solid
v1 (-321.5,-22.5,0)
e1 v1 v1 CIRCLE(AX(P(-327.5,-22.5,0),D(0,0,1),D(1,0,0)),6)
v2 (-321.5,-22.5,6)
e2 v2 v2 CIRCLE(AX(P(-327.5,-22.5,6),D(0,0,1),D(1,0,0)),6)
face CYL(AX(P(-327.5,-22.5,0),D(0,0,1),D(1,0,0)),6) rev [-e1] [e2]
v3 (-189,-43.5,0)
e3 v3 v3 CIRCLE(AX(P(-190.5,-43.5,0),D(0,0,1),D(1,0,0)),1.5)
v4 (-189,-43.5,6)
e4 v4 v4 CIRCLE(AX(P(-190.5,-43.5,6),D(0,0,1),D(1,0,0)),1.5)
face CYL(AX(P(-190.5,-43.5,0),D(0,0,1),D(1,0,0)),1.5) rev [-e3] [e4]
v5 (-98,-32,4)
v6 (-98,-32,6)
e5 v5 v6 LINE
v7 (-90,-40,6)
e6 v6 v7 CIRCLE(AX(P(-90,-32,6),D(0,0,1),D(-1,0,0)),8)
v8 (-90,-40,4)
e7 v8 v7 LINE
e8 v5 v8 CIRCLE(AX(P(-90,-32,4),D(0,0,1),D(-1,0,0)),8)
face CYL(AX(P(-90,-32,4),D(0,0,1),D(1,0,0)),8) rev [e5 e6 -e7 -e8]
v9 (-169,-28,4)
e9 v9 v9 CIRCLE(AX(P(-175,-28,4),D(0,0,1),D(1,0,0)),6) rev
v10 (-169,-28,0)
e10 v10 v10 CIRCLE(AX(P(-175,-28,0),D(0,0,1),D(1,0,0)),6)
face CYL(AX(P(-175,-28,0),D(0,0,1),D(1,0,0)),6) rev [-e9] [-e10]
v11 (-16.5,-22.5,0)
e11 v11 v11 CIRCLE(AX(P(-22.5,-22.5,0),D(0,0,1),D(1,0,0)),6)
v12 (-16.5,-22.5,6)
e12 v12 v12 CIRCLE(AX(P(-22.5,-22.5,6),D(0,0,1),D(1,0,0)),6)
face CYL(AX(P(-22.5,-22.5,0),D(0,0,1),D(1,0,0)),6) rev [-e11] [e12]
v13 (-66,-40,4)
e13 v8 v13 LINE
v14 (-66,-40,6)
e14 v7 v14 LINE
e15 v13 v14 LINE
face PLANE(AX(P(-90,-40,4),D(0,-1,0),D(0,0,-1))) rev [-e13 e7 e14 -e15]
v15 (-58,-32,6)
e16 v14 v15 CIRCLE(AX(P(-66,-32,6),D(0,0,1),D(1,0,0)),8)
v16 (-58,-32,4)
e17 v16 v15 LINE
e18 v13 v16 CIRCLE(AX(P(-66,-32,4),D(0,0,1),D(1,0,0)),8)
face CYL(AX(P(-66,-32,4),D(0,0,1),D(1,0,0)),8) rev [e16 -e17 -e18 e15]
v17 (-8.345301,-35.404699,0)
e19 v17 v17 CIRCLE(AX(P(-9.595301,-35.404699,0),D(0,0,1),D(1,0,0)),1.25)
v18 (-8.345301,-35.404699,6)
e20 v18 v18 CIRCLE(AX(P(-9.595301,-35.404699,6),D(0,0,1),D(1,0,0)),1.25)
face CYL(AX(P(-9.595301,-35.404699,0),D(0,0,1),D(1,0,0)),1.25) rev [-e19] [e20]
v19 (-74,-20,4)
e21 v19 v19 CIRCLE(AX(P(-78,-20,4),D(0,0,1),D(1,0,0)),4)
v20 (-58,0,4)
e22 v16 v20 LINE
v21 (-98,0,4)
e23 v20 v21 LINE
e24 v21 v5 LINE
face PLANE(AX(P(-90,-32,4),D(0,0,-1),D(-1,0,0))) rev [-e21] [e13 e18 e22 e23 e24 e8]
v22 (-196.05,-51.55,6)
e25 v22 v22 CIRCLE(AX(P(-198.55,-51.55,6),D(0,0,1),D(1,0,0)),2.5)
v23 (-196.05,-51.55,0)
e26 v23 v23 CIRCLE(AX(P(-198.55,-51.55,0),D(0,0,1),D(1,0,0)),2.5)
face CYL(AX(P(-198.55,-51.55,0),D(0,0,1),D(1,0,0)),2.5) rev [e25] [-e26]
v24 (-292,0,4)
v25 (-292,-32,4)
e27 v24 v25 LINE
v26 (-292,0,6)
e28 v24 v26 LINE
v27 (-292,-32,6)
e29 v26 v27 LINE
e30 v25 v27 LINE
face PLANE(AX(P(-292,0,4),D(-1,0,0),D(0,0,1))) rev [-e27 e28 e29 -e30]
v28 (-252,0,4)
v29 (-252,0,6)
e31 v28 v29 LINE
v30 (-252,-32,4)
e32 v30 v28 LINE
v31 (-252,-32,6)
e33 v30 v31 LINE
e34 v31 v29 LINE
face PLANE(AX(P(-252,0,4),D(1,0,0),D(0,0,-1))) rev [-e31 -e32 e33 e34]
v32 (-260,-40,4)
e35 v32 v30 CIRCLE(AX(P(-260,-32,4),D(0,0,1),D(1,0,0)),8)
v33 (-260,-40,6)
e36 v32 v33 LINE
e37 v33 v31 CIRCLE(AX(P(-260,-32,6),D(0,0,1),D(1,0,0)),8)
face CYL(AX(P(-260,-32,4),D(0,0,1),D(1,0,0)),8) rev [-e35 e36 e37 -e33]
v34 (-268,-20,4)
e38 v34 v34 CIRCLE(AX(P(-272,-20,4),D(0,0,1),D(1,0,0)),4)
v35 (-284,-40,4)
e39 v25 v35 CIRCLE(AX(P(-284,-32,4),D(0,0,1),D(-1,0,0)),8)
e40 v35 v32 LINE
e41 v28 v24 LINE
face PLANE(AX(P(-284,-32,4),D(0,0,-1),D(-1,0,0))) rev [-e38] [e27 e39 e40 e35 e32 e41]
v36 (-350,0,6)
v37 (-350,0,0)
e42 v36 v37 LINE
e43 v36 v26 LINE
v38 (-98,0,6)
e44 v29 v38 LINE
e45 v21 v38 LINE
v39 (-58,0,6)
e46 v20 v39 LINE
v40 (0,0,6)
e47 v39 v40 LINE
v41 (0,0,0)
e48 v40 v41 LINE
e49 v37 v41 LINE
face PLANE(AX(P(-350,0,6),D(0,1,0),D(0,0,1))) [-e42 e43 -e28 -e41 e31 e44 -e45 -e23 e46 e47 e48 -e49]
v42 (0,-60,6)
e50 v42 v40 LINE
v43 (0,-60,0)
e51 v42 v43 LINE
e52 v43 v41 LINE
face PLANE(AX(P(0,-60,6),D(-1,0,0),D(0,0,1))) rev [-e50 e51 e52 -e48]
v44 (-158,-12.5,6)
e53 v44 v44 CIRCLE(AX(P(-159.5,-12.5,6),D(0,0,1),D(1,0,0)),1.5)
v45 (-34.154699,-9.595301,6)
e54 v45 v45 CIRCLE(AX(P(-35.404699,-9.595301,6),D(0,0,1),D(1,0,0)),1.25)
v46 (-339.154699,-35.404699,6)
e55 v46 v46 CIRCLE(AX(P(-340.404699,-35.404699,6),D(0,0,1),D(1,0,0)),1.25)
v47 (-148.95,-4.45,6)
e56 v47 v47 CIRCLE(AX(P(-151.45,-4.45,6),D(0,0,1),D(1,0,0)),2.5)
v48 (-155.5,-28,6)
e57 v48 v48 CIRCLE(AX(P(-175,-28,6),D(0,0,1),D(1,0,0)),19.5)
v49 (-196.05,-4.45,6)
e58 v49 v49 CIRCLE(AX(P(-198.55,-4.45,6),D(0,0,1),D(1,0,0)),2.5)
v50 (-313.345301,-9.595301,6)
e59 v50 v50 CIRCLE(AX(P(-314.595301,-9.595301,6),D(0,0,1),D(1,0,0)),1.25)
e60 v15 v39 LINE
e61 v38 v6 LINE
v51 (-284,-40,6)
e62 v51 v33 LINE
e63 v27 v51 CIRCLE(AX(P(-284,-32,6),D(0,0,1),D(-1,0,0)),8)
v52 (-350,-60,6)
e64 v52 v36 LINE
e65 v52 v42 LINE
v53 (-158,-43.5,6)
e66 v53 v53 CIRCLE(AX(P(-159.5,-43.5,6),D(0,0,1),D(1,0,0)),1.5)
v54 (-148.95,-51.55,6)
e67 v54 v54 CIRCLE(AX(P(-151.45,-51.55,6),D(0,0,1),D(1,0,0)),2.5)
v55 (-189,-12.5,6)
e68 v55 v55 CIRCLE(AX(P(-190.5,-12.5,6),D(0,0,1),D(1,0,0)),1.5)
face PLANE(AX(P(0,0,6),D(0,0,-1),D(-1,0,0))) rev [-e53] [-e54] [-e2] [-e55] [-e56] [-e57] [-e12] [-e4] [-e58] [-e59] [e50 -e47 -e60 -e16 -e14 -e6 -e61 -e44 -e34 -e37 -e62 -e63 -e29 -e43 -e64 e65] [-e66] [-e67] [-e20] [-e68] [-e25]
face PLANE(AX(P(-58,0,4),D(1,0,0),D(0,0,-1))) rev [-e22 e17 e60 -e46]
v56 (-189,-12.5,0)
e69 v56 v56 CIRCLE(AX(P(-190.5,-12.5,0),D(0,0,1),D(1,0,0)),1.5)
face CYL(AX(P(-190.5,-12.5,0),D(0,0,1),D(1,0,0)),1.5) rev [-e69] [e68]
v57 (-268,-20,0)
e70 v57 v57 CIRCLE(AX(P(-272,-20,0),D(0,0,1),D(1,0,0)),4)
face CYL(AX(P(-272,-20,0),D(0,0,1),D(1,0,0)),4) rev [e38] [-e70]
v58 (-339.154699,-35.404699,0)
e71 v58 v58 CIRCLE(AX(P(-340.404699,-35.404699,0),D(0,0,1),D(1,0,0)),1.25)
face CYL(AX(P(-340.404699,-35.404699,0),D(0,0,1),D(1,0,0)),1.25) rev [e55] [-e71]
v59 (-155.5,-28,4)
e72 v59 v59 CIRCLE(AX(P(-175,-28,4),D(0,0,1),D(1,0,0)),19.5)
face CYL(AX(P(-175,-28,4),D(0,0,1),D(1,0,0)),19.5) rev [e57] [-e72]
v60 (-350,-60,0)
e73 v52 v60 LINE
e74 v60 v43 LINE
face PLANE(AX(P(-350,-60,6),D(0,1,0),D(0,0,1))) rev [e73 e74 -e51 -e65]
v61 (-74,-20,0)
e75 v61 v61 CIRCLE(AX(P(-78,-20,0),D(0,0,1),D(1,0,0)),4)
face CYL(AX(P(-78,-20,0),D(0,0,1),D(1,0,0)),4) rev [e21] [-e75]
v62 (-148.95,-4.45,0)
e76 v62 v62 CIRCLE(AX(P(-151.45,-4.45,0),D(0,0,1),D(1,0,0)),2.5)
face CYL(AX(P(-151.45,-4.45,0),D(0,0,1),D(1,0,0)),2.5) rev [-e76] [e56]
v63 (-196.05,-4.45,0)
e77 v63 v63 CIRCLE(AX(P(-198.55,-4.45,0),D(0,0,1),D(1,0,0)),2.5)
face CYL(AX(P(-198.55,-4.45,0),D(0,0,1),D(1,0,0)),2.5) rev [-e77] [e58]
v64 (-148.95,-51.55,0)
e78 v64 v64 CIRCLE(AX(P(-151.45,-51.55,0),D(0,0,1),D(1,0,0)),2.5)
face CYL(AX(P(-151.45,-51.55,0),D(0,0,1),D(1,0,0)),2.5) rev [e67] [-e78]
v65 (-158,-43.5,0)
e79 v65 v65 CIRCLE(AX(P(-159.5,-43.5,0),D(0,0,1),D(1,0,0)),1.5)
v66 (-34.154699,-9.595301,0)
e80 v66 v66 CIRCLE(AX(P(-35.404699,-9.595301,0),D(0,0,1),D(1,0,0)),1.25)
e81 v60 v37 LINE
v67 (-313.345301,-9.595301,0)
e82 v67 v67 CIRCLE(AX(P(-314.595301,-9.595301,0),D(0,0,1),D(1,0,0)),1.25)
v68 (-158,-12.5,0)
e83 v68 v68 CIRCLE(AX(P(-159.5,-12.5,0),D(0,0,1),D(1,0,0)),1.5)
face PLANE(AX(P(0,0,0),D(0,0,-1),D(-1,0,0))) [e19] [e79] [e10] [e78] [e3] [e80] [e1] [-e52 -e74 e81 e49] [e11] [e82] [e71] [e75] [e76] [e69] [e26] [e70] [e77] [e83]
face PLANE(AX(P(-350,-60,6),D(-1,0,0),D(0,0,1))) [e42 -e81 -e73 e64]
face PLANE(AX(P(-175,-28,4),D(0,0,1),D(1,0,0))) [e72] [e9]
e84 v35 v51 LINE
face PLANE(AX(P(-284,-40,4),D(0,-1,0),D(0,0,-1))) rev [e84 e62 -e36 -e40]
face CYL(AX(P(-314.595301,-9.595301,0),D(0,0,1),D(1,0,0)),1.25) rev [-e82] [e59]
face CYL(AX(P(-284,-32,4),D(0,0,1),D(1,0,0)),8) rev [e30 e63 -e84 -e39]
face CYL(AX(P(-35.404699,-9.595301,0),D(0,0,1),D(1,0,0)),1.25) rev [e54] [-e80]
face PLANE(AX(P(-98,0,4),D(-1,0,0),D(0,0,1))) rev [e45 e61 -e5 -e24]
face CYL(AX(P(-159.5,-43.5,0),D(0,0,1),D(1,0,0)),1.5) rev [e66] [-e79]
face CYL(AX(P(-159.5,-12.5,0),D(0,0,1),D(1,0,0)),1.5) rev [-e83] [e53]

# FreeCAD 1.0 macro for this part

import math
import FreeCAD as App
import Part
import Sketcher

V = App.Vector


def add_polygon(sketch, points):
    """Adds a closed chain of lines whose ends are joined by coincident constraints."""
    first, n = sketch.GeometryCount, len(points)
    for a, b in zip(points, points[1:] + points[:1]):
        sketch.addGeometry(Part.LineSegment(App.Vector(*a, 0), App.Vector(*b, 0)), False)
    for i in range(n):
        sketch.addConstraint(Sketcher.Constraint("Coincident", first + i, 2, first + (i + 1) % n, 1))

doc = App.newDocument("Part")
body = doc.addObject("PartDesign::Body", "Body")

sketch1 = doc.addObject("Sketcher::SketchObject", "Sketch")
body.addObject(sketch1)
sketch1.AttachmentSupport = (doc.XY_Plane, [""])
sketch1.MapMode = "FlatFace"
add_polygon(sketch1, [(-350, 0), (-350, -60), (0, -60), (0, 0)])
sketch1.addConstraint(Sketcher.Constraint("Vertical", 0))
sketch1.addConstraint(Sketcher.Constraint("Horizontal", 1))
sketch1.addConstraint(Sketcher.Constraint("Vertical", 2))
sketch1.addConstraint(Sketcher.Constraint("Horizontal", 3))
sketch1.addConstraint(Sketcher.Constraint("Coincident", 2, 2, -1, 1))
sketch1.addConstraint(Sketcher.Constraint("DistanceX", 1, 1, 1, 2, 350.0))
sketch1.addConstraint(Sketcher.Constraint("DistanceY", 0, 2, 0, 1, 60.0))
pad1 = doc.addObject("PartDesign::Pad", "Pad")
body.addObject(pad1)
pad1.Profile = sketch1
pad1.Length = 6

sketch2 = doc.addObject("Sketcher::SketchObject", "Sketch001")
body.addObject(sketch2)
sketch2.AttachmentSupport = (doc.XY_Plane, [""])
sketch2.MapMode = "FlatFace"
sketch2.AttachmentOffset = App.Placement(V(0, 0, 6), App.Rotation())
sketch2.addGeometry(Part.Circle(V(-327.5, -22.5, 0), V(0, 0, 1), 6), False)
sketch2.addGeometry(Part.Circle(V(-22.5, -22.5, 0), V(0, 0, 1), 6), False)
sketch2.addGeometry(Part.Circle(V(-314.6, -9.6, 0), V(0, 0, 1), 1.2), False)
sketch2.addGeometry(Part.Circle(V(-340.4, -35.4, 0), V(0, 0, 1), 1.2), False)
sketch2.addGeometry(Part.Circle(V(-35.4, -9.6, 0), V(0, 0, 1), 1.2), False)
sketch2.addGeometry(Part.Circle(V(-9.6, -35.4, 0), V(0, 0, 1), 1.2), False)
sketch2.addConstraint(Sketcher.Constraint("Equal", 0, 1))
sketch2.addConstraint(Sketcher.Constraint("Equal", 2, 3))
sketch2.addConstraint(Sketcher.Constraint("Equal", 3, 4))
sketch2.addConstraint(Sketcher.Constraint("Equal", 4, 5))
sketch2.addConstraint(Sketcher.Constraint("Horizontal", 0, 3, 1, 3))
sketch2.addConstraint(Sketcher.Constraint("Horizontal", 2, 3, 4, 3))
sketch2.addConstraint(Sketcher.Constraint("Horizontal", 3, 3, 5, 3))
sketch2.addConstraint(Sketcher.Constraint("Diameter", 0, 12.0))
sketch2.addConstraint(Sketcher.Constraint("Diameter", 2, 2.5))
sketch2.addConstraint(Sketcher.Constraint("DistanceX", 0, 3, 1, 3, 305.0))
sketch2.addConstraint(Sketcher.Constraint("DistanceX", 3, 3, 4, 3, 305.0))
sketch2.addConstraint(Sketcher.Constraint("DistanceX", 2, 3, 5, 3, 305.0))
sketch2.addConstraint(Sketcher.Constraint("DistanceX", 0, 3, -1, 1, 327.5))
sketch2.addConstraint(Sketcher.Constraint("DistanceY", 0, 3, -1, 1, 22.5))
sketch2.addConstraint(Sketcher.Constraint("DistanceX", 2, 3, -1, 1, 314.595301))
sketch2.addConstraint(Sketcher.Constraint("DistanceY", 2, 3, -1, 1, 9.595301))
sketch2.addConstraint(Sketcher.Constraint("DistanceX", 3, 3, -1, 1, 340.404699))
sketch2.addConstraint(Sketcher.Constraint("DistanceY", 3, 3, -1, 1, 35.404699))
pocket1 = doc.addObject("PartDesign::Pocket", "Pocket")
body.addObject(pocket1)
pocket1.Profile = sketch2
pocket1.Type = "ThroughAll"

sketch3 = doc.addObject("Sketcher::SketchObject", "Sketch002")
body.addObject(sketch3)
sketch3.AttachmentSupport = (doc.XY_Plane, [""])
sketch3.MapMode = "FlatFace"
sketch3.AttachmentOffset = App.Placement(V(0, 0, 6), App.Rotation())
sketch3.addGeometry(Part.Circle(V(-175, -28, 0), V(0, 0, 1), 6), False)
sketch3.addGeometry(Part.Circle(V(-190.5, -12.5, 0), V(0, 0, 1), 1.5), False)
sketch3.addGeometry(Part.Circle(V(-159.5, -12.5, 0), V(0, 0, 1), 1.5), False)
sketch3.addGeometry(Part.Circle(V(-190.5, -43.5, 0), V(0, 0, 1), 1.5), False)
sketch3.addGeometry(Part.Circle(V(-151.4, -51.5, 0), V(0, 0, 1), 2.5), False)
sketch3.addGeometry(Part.Circle(V(-198.6, -51.5, 0), V(0, 0, 1), 2.5), False)
sketch3.addGeometry(Part.Circle(V(-159.5, -43.5, 0), V(0, 0, 1), 1.5), False)
sketch3.addGeometry(Part.Circle(V(-151.4, -4.5, 0), V(0, 0, 1), 2.5), False)
sketch3.addGeometry(Part.Circle(V(-198.6, -4.5, 0), V(0, 0, 1), 2.5), False)
sketch3.addConstraint(Sketcher.Constraint("Equal", 1, 2))
sketch3.addConstraint(Sketcher.Constraint("Equal", 2, 3))
sketch3.addConstraint(Sketcher.Constraint("Equal", 4, 5))
sketch3.addConstraint(Sketcher.Constraint("Equal", 3, 6))
sketch3.addConstraint(Sketcher.Constraint("Equal", 5, 7))
sketch3.addConstraint(Sketcher.Constraint("Equal", 7, 8))
sketch3.addConstraint(Sketcher.Constraint("Horizontal", 1, 3, 2, 3))
sketch3.addConstraint(Sketcher.Constraint("Horizontal", 4, 3, 5, 3))
sketch3.addConstraint(Sketcher.Constraint("Horizontal", 3, 3, 6, 3))
sketch3.addConstraint(Sketcher.Constraint("Horizontal", 7, 3, 8, 3))
sketch3.addConstraint(Sketcher.Constraint("Vertical", 1, 3, 3, 3))
sketch3.addConstraint(Sketcher.Constraint("Vertical", 2, 3, 6, 3))
sketch3.addConstraint(Sketcher.Constraint("Vertical", 4, 3, 7, 3))
sketch3.addConstraint(Sketcher.Constraint("Vertical", 5, 3, 8, 3))
sketch3.addConstraint(Sketcher.Constraint("Diameter", 0, 12.0))
sketch3.addConstraint(Sketcher.Constraint("Diameter", 1, 3.0))
sketch3.addConstraint(Sketcher.Constraint("Diameter", 4, 5.0))
sketch3.addConstraint(Sketcher.Constraint("DistanceX", 0, 3, -1, 1, 175.0))
sketch3.addConstraint(Sketcher.Constraint("DistanceY", 0, 3, -1, 1, 28.0))
sketch3.addConstraint(Sketcher.Constraint("DistanceX", 1, 3, 2, 3, 31.0))
sketch3.addConstraint(Sketcher.Constraint("DistanceY", 3, 3, 1, 3, 31.0))
sketch3.addConstraint(Sketcher.Constraint("DistanceX", 1, 3, -1, 1, 190.5))
sketch3.addConstraint(Sketcher.Constraint("DistanceY", 1, 3, -1, 1, 12.5))
sketch3.addConstraint(Sketcher.Constraint("DistanceX", 5, 3, 4, 3, 47.1))
sketch3.addConstraint(Sketcher.Constraint("DistanceY", 4, 3, 7, 3, 47.1))
sketch3.addConstraint(Sketcher.Constraint("DistanceX", 4, 3, -1, 1, 151.45))
sketch3.addConstraint(Sketcher.Constraint("DistanceY", 4, 3, -1, 1, 51.55))
pocket2 = doc.addObject("PartDesign::Pocket", "Pocket001")
body.addObject(pocket2)
pocket2.Profile = sketch3
pocket2.Type = "ThroughAll"

sketch4 = doc.addObject("Sketcher::SketchObject", "Sketch003")
body.addObject(sketch4)
sketch4.AttachmentSupport = (doc.XY_Plane, [""])
sketch4.MapMode = "FlatFace"
sketch4.AttachmentOffset = App.Placement(V(0, 0, 6), App.Rotation())
sketch4.addGeometry(Part.Circle(V(-175, -28, 0), V(0, 0, 1), 20), False)
sketch4.addGeometry(Part.LineSegment(V(-252, 0, 0), V(-292, 0, 0)), False)
sketch4.addGeometry(Part.LineSegment(V(-292, 0, 0), V(-292, -32, 0)), False)
sketch4.addGeometry(Part.ArcOfCircle(Part.Circle(V(-284, -32, 0), V(0, 0, 1), 8), math.radians(-180), math.radians(-90)), False)
sketch4.addGeometry(Part.LineSegment(V(-284, -40, 0), V(-260, -40, 0)), False)
sketch4.addGeometry(Part.ArcOfCircle(Part.Circle(V(-260, -32, 0), V(0, 0, 1), 8), math.radians(-90), math.radians(0)), False)
sketch4.addGeometry(Part.LineSegment(V(-252, -32, 0), V(-252, 0, 0)), False)
sketch4.addGeometry(Part.LineSegment(V(-58, 0, 0), V(-98, 0, 0)), False)
sketch4.addGeometry(Part.LineSegment(V(-98, 0, 0), V(-98, -32, 0)), False)
sketch4.addGeometry(Part.ArcOfCircle(Part.Circle(V(-90, -32, 0), V(0, 0, 1), 8), math.radians(-180), math.radians(-90)), False)
sketch4.addGeometry(Part.LineSegment(V(-90, -40, 0), V(-66, -40, 0)), False)
sketch4.addGeometry(Part.ArcOfCircle(Part.Circle(V(-66, -32, 0), V(0, 0, 1), 8), math.radians(-90), math.radians(0)), False)
sketch4.addGeometry(Part.LineSegment(V(-58, -32, 0), V(-58, 0, 0)), False)
sketch4.addConstraint(Sketcher.Constraint("Coincident", 1, 2, 2, 1))
sketch4.addConstraint(Sketcher.Constraint("Tangent", 2, 2, 3, 1))
sketch4.addConstraint(Sketcher.Constraint("Tangent", 3, 2, 4, 1))
sketch4.addConstraint(Sketcher.Constraint("Tangent", 4, 2, 5, 1))
sketch4.addConstraint(Sketcher.Constraint("Tangent", 5, 2, 6, 1))
sketch4.addConstraint(Sketcher.Constraint("Coincident", 6, 2, 1, 1))
sketch4.addConstraint(Sketcher.Constraint("Coincident", 7, 2, 8, 1))
sketch4.addConstraint(Sketcher.Constraint("Tangent", 8, 2, 9, 1))
sketch4.addConstraint(Sketcher.Constraint("Tangent", 9, 2, 10, 1))
sketch4.addConstraint(Sketcher.Constraint("Tangent", 10, 2, 11, 1))
sketch4.addConstraint(Sketcher.Constraint("Tangent", 11, 2, 12, 1))
sketch4.addConstraint(Sketcher.Constraint("Coincident", 12, 2, 7, 1))
sketch4.addConstraint(Sketcher.Constraint("Horizontal", 1))
sketch4.addConstraint(Sketcher.Constraint("Vertical", 2))
sketch4.addConstraint(Sketcher.Constraint("Horizontal", 4))
sketch4.addConstraint(Sketcher.Constraint("Vertical", 6))
sketch4.addConstraint(Sketcher.Constraint("Horizontal", 7))
sketch4.addConstraint(Sketcher.Constraint("Vertical", 8))
sketch4.addConstraint(Sketcher.Constraint("Horizontal", 10))
sketch4.addConstraint(Sketcher.Constraint("Vertical", 12))
sketch4.addConstraint(Sketcher.Constraint("Equal", 3, 5))
sketch4.addConstraint(Sketcher.Constraint("Equal", 5, 9))
sketch4.addConstraint(Sketcher.Constraint("Equal", 9, 11))
sketch4.addConstraint(Sketcher.Constraint("PointOnObject", 1, 2, -1))
sketch4.addConstraint(Sketcher.Constraint("PointOnObject", 7, 2, -1))
sketch4.addConstraint(Sketcher.Constraint("Horizontal", 5, 3, 9, 3))
sketch4.addConstraint(Sketcher.Constraint("Equal", 1, 7))
sketch4.addConstraint(Sketcher.Constraint("Diameter", 0, 39.0))
sketch4.addConstraint(Sketcher.Constraint("Radius", 3, 8.0))
sketch4.addConstraint(Sketcher.Constraint("DistanceX", 1, 2, 1, 1, 40.0))
sketch4.addConstraint(Sketcher.Constraint("DistanceY", 2, 2, 2, 1, 32.0))
sketch4.addConstraint(Sketcher.Constraint("DistanceX", 0, 3, -1, 1, 175.0))
sketch4.addConstraint(Sketcher.Constraint("DistanceY", 0, 3, -1, 1, 28.0))
sketch4.addConstraint(Sketcher.Constraint("DistanceX", 3, 3, -1, 1, 284.0))
sketch4.addConstraint(Sketcher.Constraint("DistanceX", 9, 3, -1, 1, 90.0))
pocket3 = doc.addObject("PartDesign::Pocket", "Pocket002")
body.addObject(pocket3)
pocket3.Profile = sketch4
pocket3.Length = 2

sketch5 = doc.addObject("Sketcher::SketchObject", "Sketch004")
body.addObject(sketch5)
sketch5.AttachmentSupport = (doc.XY_Plane, [""])
sketch5.MapMode = "FlatFace"
sketch5.AttachmentOffset = App.Placement(V(0, 0, 4), App.Rotation())
sketch5.addGeometry(Part.Circle(V(-272, -20, 0), V(0, 0, 1), 4), False)
sketch5.addGeometry(Part.Circle(V(-78, -20, 0), V(0, 0, 1), 4), False)
sketch5.addConstraint(Sketcher.Constraint("Equal", 0, 1))
sketch5.addConstraint(Sketcher.Constraint("Horizontal", 0, 3, 1, 3))
sketch5.addConstraint(Sketcher.Constraint("Diameter", 0, 8.0))
sketch5.addConstraint(Sketcher.Constraint("DistanceX", 0, 3, -1, 1, 272.0))
sketch5.addConstraint(Sketcher.Constraint("DistanceY", 0, 3, -1, 1, 20.0))
sketch5.addConstraint(Sketcher.Constraint("DistanceX", 1, 3, -1, 1, 78.0))
pocket4 = doc.addObject("PartDesign::Pocket", "Pocket003")
body.addObject(pocket4)
pocket4.Profile = sketch5
pocket4.Type = "ThroughAll"

doc.recompute()
